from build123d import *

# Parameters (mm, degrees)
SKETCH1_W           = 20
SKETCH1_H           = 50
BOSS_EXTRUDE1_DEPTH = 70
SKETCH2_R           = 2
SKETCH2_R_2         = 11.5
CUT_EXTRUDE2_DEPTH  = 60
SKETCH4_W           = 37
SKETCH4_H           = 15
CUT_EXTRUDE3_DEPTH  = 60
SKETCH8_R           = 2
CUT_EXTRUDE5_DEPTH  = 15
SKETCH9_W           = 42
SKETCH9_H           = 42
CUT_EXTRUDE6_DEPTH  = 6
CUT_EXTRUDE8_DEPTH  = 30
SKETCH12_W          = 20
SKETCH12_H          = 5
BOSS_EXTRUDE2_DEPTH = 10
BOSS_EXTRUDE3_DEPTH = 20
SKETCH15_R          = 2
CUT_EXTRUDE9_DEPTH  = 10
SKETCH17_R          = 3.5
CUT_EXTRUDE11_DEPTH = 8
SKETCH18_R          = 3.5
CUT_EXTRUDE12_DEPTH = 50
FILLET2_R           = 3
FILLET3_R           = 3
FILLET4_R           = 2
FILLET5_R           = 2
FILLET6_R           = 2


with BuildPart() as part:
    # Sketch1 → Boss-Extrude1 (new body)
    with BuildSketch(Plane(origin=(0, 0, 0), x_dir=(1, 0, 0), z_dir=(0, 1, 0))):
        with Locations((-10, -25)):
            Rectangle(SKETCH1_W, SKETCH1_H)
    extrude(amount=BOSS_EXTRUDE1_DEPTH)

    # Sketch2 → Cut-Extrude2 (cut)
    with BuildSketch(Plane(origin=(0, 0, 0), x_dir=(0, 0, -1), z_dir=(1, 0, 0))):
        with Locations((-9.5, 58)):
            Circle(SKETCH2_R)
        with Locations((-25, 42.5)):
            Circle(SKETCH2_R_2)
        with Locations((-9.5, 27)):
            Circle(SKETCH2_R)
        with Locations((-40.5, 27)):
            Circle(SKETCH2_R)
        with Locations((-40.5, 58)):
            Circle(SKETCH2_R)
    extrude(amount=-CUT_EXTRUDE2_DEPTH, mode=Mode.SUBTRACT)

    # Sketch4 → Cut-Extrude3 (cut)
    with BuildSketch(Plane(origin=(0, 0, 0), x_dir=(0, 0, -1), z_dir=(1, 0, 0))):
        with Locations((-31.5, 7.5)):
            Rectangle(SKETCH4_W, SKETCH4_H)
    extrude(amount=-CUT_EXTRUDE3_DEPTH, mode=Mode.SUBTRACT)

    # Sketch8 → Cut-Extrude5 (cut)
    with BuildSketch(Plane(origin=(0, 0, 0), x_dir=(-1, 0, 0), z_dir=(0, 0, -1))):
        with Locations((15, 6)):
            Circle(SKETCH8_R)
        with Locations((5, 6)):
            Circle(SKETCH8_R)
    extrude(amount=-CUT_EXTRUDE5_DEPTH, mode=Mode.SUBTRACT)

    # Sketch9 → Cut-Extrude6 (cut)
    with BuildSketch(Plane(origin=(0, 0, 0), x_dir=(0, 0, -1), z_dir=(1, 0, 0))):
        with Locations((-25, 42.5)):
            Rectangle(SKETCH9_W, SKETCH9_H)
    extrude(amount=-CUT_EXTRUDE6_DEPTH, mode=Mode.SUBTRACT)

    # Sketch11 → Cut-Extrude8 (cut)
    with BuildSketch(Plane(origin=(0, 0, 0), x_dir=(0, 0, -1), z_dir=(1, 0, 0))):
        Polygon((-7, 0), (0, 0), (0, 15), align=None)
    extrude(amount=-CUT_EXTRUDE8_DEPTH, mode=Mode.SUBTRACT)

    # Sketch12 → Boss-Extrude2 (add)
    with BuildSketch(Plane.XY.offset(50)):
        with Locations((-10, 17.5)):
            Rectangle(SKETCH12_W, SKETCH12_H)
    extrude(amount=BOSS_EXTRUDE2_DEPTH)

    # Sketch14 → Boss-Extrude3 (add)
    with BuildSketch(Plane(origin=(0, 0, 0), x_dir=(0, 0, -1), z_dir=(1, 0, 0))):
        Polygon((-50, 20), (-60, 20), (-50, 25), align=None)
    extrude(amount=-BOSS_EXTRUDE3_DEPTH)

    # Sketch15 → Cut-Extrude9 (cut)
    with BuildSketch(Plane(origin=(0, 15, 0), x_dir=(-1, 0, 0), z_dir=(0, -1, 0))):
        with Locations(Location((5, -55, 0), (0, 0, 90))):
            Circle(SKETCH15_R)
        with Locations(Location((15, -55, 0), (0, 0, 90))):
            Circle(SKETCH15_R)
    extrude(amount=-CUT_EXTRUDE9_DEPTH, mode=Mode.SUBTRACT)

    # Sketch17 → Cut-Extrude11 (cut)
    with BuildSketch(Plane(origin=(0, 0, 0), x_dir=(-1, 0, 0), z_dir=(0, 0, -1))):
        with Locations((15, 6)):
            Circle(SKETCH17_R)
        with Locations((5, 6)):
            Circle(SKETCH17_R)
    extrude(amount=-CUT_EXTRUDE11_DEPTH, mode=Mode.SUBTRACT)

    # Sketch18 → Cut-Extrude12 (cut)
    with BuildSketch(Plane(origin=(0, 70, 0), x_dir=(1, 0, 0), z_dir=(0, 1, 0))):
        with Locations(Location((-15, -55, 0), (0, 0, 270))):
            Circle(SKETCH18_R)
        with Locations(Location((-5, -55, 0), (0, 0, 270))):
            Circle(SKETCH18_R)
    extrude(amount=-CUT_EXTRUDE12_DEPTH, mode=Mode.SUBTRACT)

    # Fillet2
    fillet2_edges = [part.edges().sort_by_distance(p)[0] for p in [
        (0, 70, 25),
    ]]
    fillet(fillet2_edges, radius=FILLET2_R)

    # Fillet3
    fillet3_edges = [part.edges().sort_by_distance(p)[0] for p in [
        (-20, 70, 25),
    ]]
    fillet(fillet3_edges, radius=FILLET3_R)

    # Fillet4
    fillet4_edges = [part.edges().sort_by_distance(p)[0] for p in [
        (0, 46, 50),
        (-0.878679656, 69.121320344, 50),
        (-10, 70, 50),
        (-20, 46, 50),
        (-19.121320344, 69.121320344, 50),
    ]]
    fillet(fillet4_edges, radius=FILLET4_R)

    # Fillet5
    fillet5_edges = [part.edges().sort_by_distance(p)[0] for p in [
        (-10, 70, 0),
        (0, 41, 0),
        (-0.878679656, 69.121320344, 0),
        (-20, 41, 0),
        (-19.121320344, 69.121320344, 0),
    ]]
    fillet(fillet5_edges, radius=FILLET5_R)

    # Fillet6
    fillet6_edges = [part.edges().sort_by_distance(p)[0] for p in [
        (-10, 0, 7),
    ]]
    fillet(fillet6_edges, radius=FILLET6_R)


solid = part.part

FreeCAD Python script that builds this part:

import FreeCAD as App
import Part
import Sketcher
Q = App.Units.Quantity


def edges_at(feature, points):
    """Names of the edges that pass closest to the given points."""
    edges = feature.Shape.Edges
    near = lambda p: min(range(len(edges)), key=lambda i: edges[i].distToShape(Part.Vertex(*p))[0])
    return sorted({f"Edge{near(p) + 1}" for p in points})


def add_polygon(sketch, points):
    """Adds a closed chain of lines whose ends are joined by coincident constraints."""
    first, n = sketch.GeometryCount, len(points)
    for a, b in zip(points, points[1:] + points[:1]):
        sketch.addGeometry(Part.LineSegment(App.Vector(*a, 0), App.Vector(*b, 0)), False)
    for i in range(n):
        sketch.addConstraint(Sketcher.Constraint("Coincident", first + i, 2, first + (i + 1) % n, 1))

doc = App.newDocument("Part")
body = doc.addObject("PartDesign::Body", "Body")

# Sketch on XZ plane
sketch1 = body.newObject("Sketcher::SketchObject", "Sketch")
sketch1.AttachmentSupport = (doc.getObject("XZ_Plane"), [""])
sketch1.MapMode = "FlatFace"
add_polygon(sketch1, [(-20, 0), (-20, 50), (0, 50), (0, 0)])  # lines 0-3
sketch1.addConstraint(Sketcher.Constraint("Vertical", 0))
sketch1.addConstraint(Sketcher.Constraint("Horizontal", 1))
sketch1.addConstraint(Sketcher.Constraint("Vertical", 2))
sketch1.addConstraint(Sketcher.Constraint("Horizontal", 3))
sketch1.addConstraint(Sketcher.Constraint("Coincident", 2, 2, -1, 1))
sketch1.addConstraint(Sketcher.Constraint("DistanceX", 1, 1, 1, 2, Q("20 mm")))
sketch1.addConstraint(Sketcher.Constraint("DistanceY", 0, 1, 0, 2, Q("50 mm")))
pad1 = body.newObject("PartDesign::Pad", "Pad")
pad1.Profile = sketch1
pad1.Length = 70
pad1.Reversed = True

# Sketch on YZ plane
sketch2 = body.newObject("Sketcher::SketchObject", "Sketch001")
sketch2.AttachmentSupport = (doc.getObject("YZ_Plane"), [""])
sketch2.MapMode = "FlatFace"
sketch2.addGeometry(Part.Circle(App.Vector(58, 9.5, 0), App.Vector(0, 0, 1), 2), False)
sketch2.addGeometry(Part.Circle(App.Vector(42.5, 25, 0), App.Vector(0, 0, 1), 11.5), False)
sketch2.addGeometry(Part.Circle(App.Vector(27, 9.5, 0), App.Vector(0, 0, 1), 2), False)
sketch2.addGeometry(Part.Circle(App.Vector(27, 40.5, 0), App.Vector(0, 0, 1), 2), False)
sketch2.addGeometry(Part.Circle(App.Vector(58, 40.5, 0), App.Vector(0, 0, 1), 2), False)
sketch2.addConstraint(Sketcher.Constraint("Equal", 0, 2))
sketch2.addConstraint(Sketcher.Constraint("Equal", 2, 3))
sketch2.addConstraint(Sketcher.Constraint("Equal", 3, 4))
sketch2.addConstraint(Sketcher.Constraint("Horizontal", 0, 3, 2, 3))
sketch2.addConstraint(Sketcher.Constraint("Horizontal", 3, 3, 4, 3))
sketch2.addConstraint(Sketcher.Constraint("Vertical", 2, 3, 3, 3))
sketch2.addConstraint(Sketcher.Constraint("Vertical", 0, 3, 4, 3))
sketch2.addConstraint(Sketcher.Constraint("Diameter", 0, Q("4 mm")))
sketch2.addConstraint(Sketcher.Constraint("Diameter", 1, Q("23 mm")))
sketch2.addConstraint(Sketcher.Constraint("DistanceX", -1, 1, 0, 3, Q("58 mm")))
sketch2.addConstraint(Sketcher.Constraint("DistanceY", -1, 1, 1, 3, Q("25 mm")))
sketch2.addConstraint(Sketcher.Constraint("DistanceX", -1, 1, 2, 3, Q("27 mm")))
sketch2.addConstraint(Sketcher.Constraint("DistanceY", 2, 3, 3, 3, Q("31 mm")))
sketch2.addConstraint(Sketcher.Constraint("DistanceY", -1, 1, 0, 3, Q("9.5 mm")))
sketch2.addConstraint(Sketcher.Constraint("DistanceX", -1, 1, 1, 3, Q("42.5 mm")))
pocket1 = body.newObject("PartDesign::Pocket", "Pocket")
pocket1.Profile = sketch2
pocket1.Length = 60

# Sketch on YZ plane
sketch3 = body.newObject("Sketcher::SketchObject", "Sketch002")
sketch3.AttachmentSupport = (doc.getObject("YZ_Plane"), [""])
sketch3.MapMode = "FlatFace"
add_polygon(sketch3, [(15, 50), (0, 50), (0, 13), (15, 13)])  # lines 0-3
sketch3.addConstraint(Sketcher.Constraint("Horizontal", 0))
sketch3.addConstraint(Sketcher.Constraint("Vertical", 1))
sketch3.addConstraint(Sketcher.Constraint("Horizontal", 2))
sketch3.addConstraint(Sketcher.Constraint("Vertical", 3))
sketch3.addConstraint(Sketcher.Constraint("PointOnObject", 0, 2, -2))
sketch3.addConstraint(Sketcher.Constraint("DistanceX", 0, 2, 0, 1, Q("15 mm")))
sketch3.addConstraint(Sketcher.Constraint("DistanceY", 1, 2, 1, 1, Q("37 mm")))
sketch3.addConstraint(Sketcher.Constraint("DistanceY", -1, 1, 0, 2, Q("50 mm")))
pocket2 = body.newObject("PartDesign::Pocket", "Pocket001")
pocket2.Profile = sketch3
pocket2.Length = 60

# Sketch on XY plane
sketch4 = body.newObject("Sketcher::SketchObject", "Sketch003")
sketch4.AttachmentSupport = (doc.getObject("XY_Plane"), [""])
sketch4.MapMode = "FlatFace"
sketch4.addGeometry(Part.Circle(App.Vector(-15, 6, 0), App.Vector(0, 0, 1), 2), False)
sketch4.addGeometry(Part.Circle(App.Vector(-5, 6, 0), App.Vector(0, 0, 1), 2), False)
sketch4.addConstraint(Sketcher.Constraint("Equal", 0, 1))
sketch4.addConstraint(Sketcher.Constraint("Horizontal", 0, 3, 1, 3))
sketch4.addConstraint(Sketcher.Constraint("Diameter", 0, Q("4 mm")))
sketch4.addConstraint(Sketcher.Constraint("DistanceX", 0, 3, -1, 1, Q("15 mm")))
sketch4.addConstraint(Sketcher.Constraint("DistanceY", -1, 1, 0, 3, Q("6 mm")))
sketch4.addConstraint(Sketcher.Constraint("DistanceX", 1, 3, -1, 1, Q("5 mm")))
pocket3 = body.newObject("PartDesign::Pocket", "Pocket002")
pocket3.Profile = sketch4
pocket3.Length = 15
pocket3.Reversed = True

# Sketch on YZ plane
sketch5 = body.newObject("Sketcher::SketchObject", "Sketch004")
sketch5.AttachmentSupport = (doc.getObject("YZ_Plane"), [""])
sketch5.MapMode = "FlatFace"
add_polygon(sketch5, [(64, 46), (22, 46), (22, 4), (64, 4)])  # lines 0-3
sketch5.addConstraint(Sketcher.Constraint("Horizontal", 0))
sketch5.addConstraint(Sketcher.Constraint("Vertical", 1))
sketch5.addConstraint(Sketcher.Constraint("Horizontal", 2))
sketch5.addConstraint(Sketcher.Constraint("Vertical", 3))
sketch5.addConstraint(Sketcher.Constraint("Equal", 2, 1))
sketch5.addConstraint(Sketcher.Constraint("DistanceX", 0, 2, 0, 1, Q("42 mm")))
sketch5.addConstraint(Sketcher.Constraint("DistanceY", -1, 1, 0, 2, Q("46 mm")))
sketch5.addConstraint(Sketcher.Constraint("DistanceX", -1, 1, 0, 2, Q("21.5 mm")))
pocket4 = body.newObject("PartDesign::Pocket", "Pocket003")
pocket4.Profile = sketch5
pocket4.Length = 6

# Sketch on YZ plane
sketch6 = body.newObject("Sketcher::SketchObject", "Sketch005")
sketch6.AttachmentSupport = (doc.getObject("YZ_Plane"), [""])
sketch6.MapMode = "FlatFace"
add_polygon(sketch6, [(0, 7), (0, 0), (15, 0)])  # lines 0-2
sketch6.addConstraint(Sketcher.Constraint("Vertical", 0))
sketch6.addConstraint(Sketcher.Constraint("Horizontal", 1))
sketch6.addConstraint(Sketcher.Constraint("Coincident", 0, 2, -1, 1))
sketch6.addConstraint(Sketcher.Constraint("DistanceX", 1, 1, 1, 2, Q("15 mm")))
sketch6.addConstraint(Sketcher.Constraint("DistanceY", 0, 2, 0, 1, Q("7 mm")))
pocket5 = body.newObject("PartDesign::Pocket", "Pocket004")
pocket5.Profile = sketch6
pocket5.Length = 30

# Sketch on XY plane
sketch7 = body.newObject("Sketcher::SketchObject", "Sketch006")
sketch7.AttachmentSupport = (doc.getObject("XY_Plane"), [""])
sketch7.MapMode = "FlatFace"
sketch7.AttachmentOffset = App.Placement(App.Vector(0, 0, 50), App.Rotation())
add_polygon(sketch7, [(-20, 20), (-20, 15), (0, 15), (0, 20)])  # lines 0-3
sketch7.addConstraint(Sketcher.Constraint("Vertical", 0))
sketch7.addConstraint(Sketcher.Constraint("Horizontal", 1))
sketch7.addConstraint(Sketcher.Constraint("Vertical", 2))
sketch7.addConstraint(Sketcher.Constraint("Horizontal", 3))
sketch7.addConstraint(Sketcher.Constraint("PointOnObject", 1, 2, -2))
sketch7.addConstraint(Sketcher.Constraint("DistanceX", 1, 1, 1, 2, Q("20 mm")))
sketch7.addConstraint(Sketcher.Constraint("DistanceY", 0, 2, 0, 1, Q("5 mm")))
sketch7.addConstraint(Sketcher.Constraint("DistanceY", -1, 1, 0, 2, Q("15 mm")))
pad2 = body.newObject("PartDesign::Pad", "Pad001")
pad2.Profile = sketch7
pad2.Length = 10

# Sketch on YZ plane
sketch8 = body.newObject("Sketcher::SketchObject", "Sketch007")
sketch8.AttachmentSupport = (doc.getObject("YZ_Plane"), [""])
sketch8.MapMode = "FlatFace"
add_polygon(sketch8, [(20, 60), (20, 50), (25, 50)])  # lines 0-2
sketch8.addConstraint(Sketcher.Constraint("Vertical", 0))
sketch8.addConstraint(Sketcher.Constraint("Horizontal", 1))
sketch8.addConstraint(Sketcher.Constraint("DistanceX", 1, 1, 1, 2, Q("5 mm")))
sketch8.addConstraint(Sketcher.Constraint("DistanceY", 0, 2, 0, 1, Q("10 mm")))
sketch8.addConstraint(Sketcher.Constraint("DistanceX", -1, 1, 0, 2, Q("20 mm")))
sketch8.addConstraint(Sketcher.Constraint("DistanceY", -1, 1, 0, 2, Q("50 mm")))
pad3 = body.newObject("PartDesign::Pad", "Pad002")
pad3.Profile = sketch8
pad3.Length = 20
pad3.Reversed = True

# Sketch on XZ plane
sketch9 = body.newObject("Sketcher::SketchObject", "Sketch008")
sketch9.AttachmentSupport = (doc.getObject("XZ_Plane"), [""])
sketch9.MapMode = "FlatFace"
sketch9.AttachmentOffset = App.Placement(App.Vector(0, 0, -15), App.Rotation())
sketch9.addGeometry(Part.Circle(App.Vector(-5, 55, 0), App.Vector(0, 0, 1), 2), False)
sketch9.addGeometry(Part.Circle(App.Vector(-15, 55, 0), App.Vector(0, 0, 1), 2), False)
sketch9.addConstraint(Sketcher.Constraint("Equal", 0, 1))
sketch9.addConstraint(Sketcher.Constraint("Horizontal", 0, 3, 1, 3))
sketch9.addConstraint(Sketcher.Constraint("Diameter", 0, Q("4 mm")))
sketch9.addConstraint(Sketcher.Constraint("DistanceX", 0, 3, -1, 1, Q("5 mm")))
sketch9.addConstraint(Sketcher.Constraint("DistanceY", -1, 1, 0, 3, Q("55 mm")))
sketch9.addConstraint(Sketcher.Constraint("DistanceX", 1, 3, -1, 1, Q("15 mm")))
pocket6 = body.newObject("PartDesign::Pocket", "Pocket005")
pocket6.Profile = sketch9
pocket6.Length = 10

# Sketch on XY plane
sketch10 = body.newObject("Sketcher::SketchObject", "Sketch009")
sketch10.AttachmentSupport = (doc.getObject("XY_Plane"), [""])
sketch10.MapMode = "FlatFace"
sketch10.addGeometry(Part.Circle(App.Vector(-15, 6, 0), App.Vector(0, 0, 1), 3.5), False)
sketch10.addGeometry(Part.Circle(App.Vector(-5, 6, 0), App.Vector(0, 0, 1), 3.5), False)
sketch10.addConstraint(Sketcher.Constraint("Equal", 0, 1))
sketch10.addConstraint(Sketcher.Constraint("Horizontal", 0, 3, 1, 3))
sketch10.addConstraint(Sketcher.Constraint("Diameter", 0, Q("7 mm")))
sketch10.addConstraint(Sketcher.Constraint("DistanceX", 0, 3, -1, 1, Q("15 mm")))
sketch10.addConstraint(Sketcher.Constraint("DistanceY", -1, 1, 0, 3, Q("6 mm")))
sketch10.addConstraint(Sketcher.Constraint("DistanceX", 1, 3, -1, 1, Q("5 mm")))
pocket7 = body.newObject("PartDesign::Pocket", "Pocket006")
pocket7.Profile = sketch10
pocket7.Length = 8
pocket7.Reversed = True

# Sketch on XZ plane
sketch11 = body.newObject("Sketcher::SketchObject", "Sketch010")
sketch11.AttachmentSupport = (doc.getObject("XZ_Plane"), [""])
sketch11.MapMode = "FlatFace"
sketch11.AttachmentOffset = App.Placement(App.Vector(0, 0, -70), App.Rotation())
sketch11.addGeometry(Part.Circle(App.Vector(-15, 55, 0), App.Vector(0, 0, 1), 3.5), False)
sketch11.addGeometry(Part.Circle(App.Vector(-5, 55, 0), App.Vector(0, 0, 1), 3.5), False)
sketch11.addConstraint(Sketcher.Constraint("Equal", 0, 1))
sketch11.addConstraint(Sketcher.Constraint("Horizontal", 0, 3, 1, 3))
sketch11.addConstraint(Sketcher.Constraint("Diameter", 0, Q("7 mm")))
sketch11.addConstraint(Sketcher.Constraint("DistanceX", 0, 3, -1, 1, Q("15 mm")))
sketch11.addConstraint(Sketcher.Constraint("DistanceY", -1, 1, 0, 3, Q("55 mm")))
sketch11.addConstraint(Sketcher.Constraint("DistanceX", 1, 3, -1, 1, Q("5 mm")))
pocket8 = body.newObject("PartDesign::Pocket", "Pocket007")
pocket8.Profile = sketch11
pocket8.Length = 50
pocket8.Reversed = True
doc.recompute()

fillet = body.newObject("PartDesign::Fillet", "Fillet")
fillet.Base = (pocket8, edges_at(pocket8, [(0, 70, 25)]))
fillet.Radius = 3
doc.recompute()

fillet2 = body.newObject("PartDesign::Fillet", "Fillet001")
fillet2.Base = (fillet, edges_at(fillet, [(-20, 70, 25)]))
fillet2.Radius = 3
doc.recompute()

fillet3 = body.newObject("PartDesign::Fillet", "Fillet002")
fillet3.Base = (fillet2, edges_at(fillet2, [
    (0, 46, 50),
    (-0.879, 69.121, 50),
    (-10, 70, 50),
    (-20, 46, 50),
    (-19.121, 69.121, 50),
]))
fillet3.Radius = 2
doc.recompute()

fillet4 = body.newObject("PartDesign::Fillet", "Fillet003")
fillet4.Base = (fillet3, edges_at(fillet3, [
    (-10, 70, 0),
    (0, 41, 0),
    (-0.879, 69.121, 0),
    (-20, 41, 0),
    (-19.121, 69.121, 0),
]))
fillet4.Radius = 2
doc.recompute()

fillet5 = body.newObject("PartDesign::Fillet", "Fillet004")
fillet5.Base = (fillet4, edges_at(fillet4, [(-10, 0, 7)]))
fillet5.Radius = 2

doc.recompute()
